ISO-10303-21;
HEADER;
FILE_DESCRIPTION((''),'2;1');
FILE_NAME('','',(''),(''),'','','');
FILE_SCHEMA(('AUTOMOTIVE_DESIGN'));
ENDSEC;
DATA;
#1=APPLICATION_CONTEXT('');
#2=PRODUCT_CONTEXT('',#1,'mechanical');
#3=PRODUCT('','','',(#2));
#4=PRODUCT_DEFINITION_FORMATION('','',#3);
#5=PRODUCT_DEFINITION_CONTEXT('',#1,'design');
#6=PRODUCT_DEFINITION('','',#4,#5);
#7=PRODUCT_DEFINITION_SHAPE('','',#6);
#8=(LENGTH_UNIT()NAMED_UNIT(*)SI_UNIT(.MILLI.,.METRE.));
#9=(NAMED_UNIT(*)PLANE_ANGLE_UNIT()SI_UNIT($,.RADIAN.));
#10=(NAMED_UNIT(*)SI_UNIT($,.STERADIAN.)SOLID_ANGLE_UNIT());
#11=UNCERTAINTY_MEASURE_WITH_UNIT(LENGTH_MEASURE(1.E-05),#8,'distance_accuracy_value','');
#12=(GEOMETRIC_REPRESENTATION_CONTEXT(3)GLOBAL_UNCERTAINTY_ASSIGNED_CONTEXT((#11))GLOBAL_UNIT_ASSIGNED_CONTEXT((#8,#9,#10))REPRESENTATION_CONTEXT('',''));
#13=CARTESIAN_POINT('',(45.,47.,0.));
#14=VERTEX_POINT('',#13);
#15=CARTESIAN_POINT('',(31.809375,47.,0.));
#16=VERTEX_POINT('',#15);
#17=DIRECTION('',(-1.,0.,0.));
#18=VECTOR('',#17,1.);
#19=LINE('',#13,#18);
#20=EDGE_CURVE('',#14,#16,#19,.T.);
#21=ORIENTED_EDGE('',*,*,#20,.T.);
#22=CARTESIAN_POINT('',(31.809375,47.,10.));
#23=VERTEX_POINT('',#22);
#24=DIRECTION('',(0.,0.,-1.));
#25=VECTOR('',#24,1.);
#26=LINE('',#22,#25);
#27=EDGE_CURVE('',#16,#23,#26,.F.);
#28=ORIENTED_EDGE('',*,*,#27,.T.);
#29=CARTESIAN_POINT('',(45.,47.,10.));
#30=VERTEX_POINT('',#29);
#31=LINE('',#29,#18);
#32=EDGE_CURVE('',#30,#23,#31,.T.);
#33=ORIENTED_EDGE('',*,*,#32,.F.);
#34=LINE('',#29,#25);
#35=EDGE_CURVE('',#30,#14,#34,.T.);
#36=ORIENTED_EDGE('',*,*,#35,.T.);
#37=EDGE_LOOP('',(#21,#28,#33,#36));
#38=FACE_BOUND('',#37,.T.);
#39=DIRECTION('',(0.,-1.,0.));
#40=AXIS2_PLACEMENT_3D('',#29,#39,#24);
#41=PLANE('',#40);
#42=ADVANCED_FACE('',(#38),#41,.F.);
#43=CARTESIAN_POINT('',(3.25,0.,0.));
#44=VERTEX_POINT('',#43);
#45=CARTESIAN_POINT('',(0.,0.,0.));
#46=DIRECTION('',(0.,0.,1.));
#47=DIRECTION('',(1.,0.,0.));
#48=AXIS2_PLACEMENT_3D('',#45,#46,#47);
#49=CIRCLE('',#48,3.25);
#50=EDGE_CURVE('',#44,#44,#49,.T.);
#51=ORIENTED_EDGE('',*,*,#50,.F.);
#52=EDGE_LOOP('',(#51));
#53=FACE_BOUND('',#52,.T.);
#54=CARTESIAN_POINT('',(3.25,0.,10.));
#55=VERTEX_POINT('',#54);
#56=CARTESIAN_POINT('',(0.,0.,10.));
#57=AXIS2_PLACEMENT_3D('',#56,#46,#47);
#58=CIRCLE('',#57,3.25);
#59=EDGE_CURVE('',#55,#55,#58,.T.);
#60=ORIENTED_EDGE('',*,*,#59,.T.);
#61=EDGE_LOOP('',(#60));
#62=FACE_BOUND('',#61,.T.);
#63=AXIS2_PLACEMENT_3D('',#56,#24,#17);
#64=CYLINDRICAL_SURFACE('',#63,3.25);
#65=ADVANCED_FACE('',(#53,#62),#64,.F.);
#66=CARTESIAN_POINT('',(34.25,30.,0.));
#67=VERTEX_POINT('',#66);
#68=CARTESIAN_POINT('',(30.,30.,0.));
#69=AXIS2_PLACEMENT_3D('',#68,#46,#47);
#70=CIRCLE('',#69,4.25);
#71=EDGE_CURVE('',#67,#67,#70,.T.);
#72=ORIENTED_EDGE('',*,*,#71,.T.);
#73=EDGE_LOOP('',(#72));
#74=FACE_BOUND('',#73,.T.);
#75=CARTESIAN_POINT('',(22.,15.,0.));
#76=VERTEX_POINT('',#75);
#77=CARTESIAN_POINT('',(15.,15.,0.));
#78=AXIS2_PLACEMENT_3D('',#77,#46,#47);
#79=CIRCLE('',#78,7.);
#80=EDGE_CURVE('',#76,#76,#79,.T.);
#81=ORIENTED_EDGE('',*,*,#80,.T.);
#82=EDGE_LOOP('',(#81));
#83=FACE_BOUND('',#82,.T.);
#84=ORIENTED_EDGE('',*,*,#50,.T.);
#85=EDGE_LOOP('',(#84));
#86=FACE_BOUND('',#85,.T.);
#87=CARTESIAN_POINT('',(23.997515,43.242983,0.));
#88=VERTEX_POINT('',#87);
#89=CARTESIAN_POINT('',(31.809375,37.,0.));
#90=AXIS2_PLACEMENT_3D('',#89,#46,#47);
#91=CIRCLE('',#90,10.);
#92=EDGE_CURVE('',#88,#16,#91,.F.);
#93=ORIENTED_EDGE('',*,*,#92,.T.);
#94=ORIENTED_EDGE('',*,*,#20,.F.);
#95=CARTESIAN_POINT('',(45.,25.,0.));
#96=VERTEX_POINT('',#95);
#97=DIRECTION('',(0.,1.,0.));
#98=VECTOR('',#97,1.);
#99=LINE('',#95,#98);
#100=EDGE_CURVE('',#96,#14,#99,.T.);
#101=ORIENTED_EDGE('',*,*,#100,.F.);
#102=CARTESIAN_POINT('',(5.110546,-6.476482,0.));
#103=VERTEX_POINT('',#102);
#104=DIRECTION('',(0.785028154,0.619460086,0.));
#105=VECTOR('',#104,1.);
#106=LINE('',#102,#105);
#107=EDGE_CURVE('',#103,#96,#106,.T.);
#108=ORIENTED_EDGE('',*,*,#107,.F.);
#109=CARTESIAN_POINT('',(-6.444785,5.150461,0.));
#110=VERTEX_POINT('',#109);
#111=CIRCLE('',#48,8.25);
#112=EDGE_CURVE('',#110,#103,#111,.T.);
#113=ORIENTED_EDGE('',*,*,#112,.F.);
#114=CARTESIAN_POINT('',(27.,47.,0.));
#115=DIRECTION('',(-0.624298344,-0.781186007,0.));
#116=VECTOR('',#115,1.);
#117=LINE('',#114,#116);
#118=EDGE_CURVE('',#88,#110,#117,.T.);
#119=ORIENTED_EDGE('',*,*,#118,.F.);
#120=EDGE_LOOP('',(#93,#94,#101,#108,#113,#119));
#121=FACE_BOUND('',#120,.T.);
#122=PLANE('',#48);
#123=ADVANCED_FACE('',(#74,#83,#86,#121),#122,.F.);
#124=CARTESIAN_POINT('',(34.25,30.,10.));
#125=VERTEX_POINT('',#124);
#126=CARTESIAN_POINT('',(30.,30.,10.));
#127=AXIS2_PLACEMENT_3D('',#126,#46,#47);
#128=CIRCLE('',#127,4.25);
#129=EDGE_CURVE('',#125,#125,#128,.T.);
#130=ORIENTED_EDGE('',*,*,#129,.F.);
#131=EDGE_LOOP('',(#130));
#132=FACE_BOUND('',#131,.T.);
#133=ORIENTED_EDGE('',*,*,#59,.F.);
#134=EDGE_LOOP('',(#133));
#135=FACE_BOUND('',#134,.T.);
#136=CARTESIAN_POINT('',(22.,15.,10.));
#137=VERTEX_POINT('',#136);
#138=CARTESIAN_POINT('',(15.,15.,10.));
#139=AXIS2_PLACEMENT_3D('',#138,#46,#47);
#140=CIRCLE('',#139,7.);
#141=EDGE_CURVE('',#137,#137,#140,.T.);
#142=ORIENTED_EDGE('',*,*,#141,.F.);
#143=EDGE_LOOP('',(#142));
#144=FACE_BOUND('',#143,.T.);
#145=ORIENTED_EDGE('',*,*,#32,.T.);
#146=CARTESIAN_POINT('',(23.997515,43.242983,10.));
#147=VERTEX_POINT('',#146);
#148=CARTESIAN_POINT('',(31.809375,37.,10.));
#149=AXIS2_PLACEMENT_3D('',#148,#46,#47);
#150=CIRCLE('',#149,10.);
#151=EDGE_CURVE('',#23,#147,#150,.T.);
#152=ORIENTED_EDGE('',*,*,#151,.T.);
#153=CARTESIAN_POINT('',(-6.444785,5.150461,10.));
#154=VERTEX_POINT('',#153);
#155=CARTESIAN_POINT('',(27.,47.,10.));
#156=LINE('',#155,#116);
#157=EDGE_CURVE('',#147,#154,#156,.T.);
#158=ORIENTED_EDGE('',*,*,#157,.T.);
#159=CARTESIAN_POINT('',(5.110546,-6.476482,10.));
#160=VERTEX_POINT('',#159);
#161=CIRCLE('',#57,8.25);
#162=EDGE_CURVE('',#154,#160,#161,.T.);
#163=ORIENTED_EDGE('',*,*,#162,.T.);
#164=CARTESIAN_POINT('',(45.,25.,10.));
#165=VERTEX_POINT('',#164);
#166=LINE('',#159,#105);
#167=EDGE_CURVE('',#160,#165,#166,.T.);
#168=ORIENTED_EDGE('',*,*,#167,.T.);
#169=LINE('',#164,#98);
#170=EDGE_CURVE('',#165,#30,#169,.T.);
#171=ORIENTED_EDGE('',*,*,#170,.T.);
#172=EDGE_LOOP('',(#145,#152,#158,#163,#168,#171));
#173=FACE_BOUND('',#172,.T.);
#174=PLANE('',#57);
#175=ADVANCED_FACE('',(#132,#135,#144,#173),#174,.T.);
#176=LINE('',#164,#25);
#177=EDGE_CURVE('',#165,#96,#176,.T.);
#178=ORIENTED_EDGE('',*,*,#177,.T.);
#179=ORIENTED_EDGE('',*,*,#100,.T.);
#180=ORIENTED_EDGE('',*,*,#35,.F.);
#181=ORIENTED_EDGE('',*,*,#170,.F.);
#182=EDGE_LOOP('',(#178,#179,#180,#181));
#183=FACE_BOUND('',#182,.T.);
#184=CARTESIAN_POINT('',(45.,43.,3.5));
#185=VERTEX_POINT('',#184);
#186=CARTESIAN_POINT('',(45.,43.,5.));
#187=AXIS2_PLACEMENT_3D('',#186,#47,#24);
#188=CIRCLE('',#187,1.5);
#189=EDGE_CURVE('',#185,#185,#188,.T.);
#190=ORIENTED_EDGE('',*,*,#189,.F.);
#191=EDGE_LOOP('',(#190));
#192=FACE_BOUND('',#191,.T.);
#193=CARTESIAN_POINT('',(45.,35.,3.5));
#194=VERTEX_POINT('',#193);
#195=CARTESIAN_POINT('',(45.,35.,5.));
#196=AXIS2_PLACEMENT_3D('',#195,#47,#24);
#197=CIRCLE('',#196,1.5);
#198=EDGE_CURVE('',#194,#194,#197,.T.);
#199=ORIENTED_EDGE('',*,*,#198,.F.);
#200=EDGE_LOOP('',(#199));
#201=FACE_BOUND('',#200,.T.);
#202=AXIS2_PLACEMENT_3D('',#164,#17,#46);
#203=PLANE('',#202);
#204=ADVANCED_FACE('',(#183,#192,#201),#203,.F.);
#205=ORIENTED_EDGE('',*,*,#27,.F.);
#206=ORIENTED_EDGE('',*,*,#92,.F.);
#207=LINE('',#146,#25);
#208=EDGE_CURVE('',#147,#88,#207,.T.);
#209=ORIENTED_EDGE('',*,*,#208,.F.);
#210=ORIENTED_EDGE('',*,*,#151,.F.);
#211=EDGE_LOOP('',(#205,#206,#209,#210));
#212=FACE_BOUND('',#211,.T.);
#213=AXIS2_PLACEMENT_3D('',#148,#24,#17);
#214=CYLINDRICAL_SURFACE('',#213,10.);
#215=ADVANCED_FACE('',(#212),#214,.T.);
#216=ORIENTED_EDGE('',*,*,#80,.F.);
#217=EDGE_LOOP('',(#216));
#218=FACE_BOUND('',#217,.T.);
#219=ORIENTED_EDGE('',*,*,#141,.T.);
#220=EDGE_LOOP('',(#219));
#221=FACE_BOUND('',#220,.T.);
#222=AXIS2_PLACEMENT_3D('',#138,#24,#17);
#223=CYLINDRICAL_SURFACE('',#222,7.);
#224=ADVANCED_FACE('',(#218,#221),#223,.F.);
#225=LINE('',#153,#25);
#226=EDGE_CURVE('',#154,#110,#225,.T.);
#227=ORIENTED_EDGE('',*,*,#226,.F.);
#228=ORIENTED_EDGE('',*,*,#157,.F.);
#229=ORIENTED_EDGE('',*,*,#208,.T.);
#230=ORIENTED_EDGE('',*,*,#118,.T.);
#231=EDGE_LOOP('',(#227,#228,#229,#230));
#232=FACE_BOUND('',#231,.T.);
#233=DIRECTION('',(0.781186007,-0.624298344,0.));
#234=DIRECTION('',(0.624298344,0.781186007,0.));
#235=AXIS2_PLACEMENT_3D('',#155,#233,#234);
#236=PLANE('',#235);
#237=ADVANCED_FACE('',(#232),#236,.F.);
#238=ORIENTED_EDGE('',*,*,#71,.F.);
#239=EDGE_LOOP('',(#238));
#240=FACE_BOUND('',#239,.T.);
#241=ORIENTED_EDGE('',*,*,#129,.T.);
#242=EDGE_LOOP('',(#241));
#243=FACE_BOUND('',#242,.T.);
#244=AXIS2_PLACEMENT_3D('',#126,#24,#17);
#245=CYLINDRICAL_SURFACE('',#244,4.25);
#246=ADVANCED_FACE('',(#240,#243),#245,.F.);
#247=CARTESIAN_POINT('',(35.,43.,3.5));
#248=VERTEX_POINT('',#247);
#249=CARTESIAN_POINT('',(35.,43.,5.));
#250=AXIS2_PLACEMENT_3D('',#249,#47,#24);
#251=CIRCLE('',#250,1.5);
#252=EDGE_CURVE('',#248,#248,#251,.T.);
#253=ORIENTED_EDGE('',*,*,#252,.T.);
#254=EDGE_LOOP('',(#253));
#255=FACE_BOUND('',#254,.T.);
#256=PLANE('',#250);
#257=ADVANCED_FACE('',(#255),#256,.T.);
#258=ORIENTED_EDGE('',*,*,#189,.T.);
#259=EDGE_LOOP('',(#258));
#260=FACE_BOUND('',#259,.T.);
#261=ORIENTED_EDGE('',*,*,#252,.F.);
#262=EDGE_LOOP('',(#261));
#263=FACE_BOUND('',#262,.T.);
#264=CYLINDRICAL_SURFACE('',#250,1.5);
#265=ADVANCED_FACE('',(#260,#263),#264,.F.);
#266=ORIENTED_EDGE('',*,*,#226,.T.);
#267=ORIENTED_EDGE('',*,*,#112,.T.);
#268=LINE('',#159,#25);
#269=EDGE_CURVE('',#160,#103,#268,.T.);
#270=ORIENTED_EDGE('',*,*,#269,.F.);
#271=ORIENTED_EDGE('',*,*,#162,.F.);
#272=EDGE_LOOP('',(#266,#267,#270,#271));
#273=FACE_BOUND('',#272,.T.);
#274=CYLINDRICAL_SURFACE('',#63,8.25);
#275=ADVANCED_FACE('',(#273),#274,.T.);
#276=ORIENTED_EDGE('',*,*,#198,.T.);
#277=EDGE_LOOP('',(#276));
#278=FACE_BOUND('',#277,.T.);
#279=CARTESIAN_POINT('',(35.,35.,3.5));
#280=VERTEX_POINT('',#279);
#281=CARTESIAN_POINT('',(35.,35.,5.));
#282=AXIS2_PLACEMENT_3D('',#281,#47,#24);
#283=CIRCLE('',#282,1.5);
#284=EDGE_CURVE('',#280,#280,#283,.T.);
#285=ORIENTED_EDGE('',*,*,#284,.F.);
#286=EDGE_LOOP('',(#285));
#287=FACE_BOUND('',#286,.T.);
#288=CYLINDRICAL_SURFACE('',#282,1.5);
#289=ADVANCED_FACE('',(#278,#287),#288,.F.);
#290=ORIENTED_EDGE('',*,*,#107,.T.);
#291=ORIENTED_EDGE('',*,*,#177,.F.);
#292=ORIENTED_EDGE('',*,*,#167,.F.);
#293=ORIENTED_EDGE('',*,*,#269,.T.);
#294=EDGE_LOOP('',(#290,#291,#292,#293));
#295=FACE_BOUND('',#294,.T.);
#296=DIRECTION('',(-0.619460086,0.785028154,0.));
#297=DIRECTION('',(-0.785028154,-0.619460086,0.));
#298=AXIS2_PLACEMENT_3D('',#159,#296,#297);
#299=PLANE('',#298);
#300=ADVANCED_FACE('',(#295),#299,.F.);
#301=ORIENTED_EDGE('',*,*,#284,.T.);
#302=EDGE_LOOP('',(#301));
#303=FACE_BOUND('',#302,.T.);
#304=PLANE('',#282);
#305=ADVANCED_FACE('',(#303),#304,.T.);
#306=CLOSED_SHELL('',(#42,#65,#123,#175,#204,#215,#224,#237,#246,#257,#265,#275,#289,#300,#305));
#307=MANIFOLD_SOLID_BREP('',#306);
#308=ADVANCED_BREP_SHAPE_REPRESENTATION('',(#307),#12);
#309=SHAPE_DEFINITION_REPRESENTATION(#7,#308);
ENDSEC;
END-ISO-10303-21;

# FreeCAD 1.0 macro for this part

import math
import FreeCAD as App
import Part
import Sketcher

V = App.Vector
Q = App.Units.Quantity


def edges_at(feature, points):
    """Names of the edges that pass closest to the given points."""
    edges = feature.Shape.Edges
    near = lambda p: min(range(len(edges)), key=lambda i: edges[i].distToShape(Part.Vertex(*p))[0])
    return sorted({f"Edge{near(p) + 1}" for p in points})

doc = App.newDocument("Part")
params = doc.addObject("Spreadsheet::Sheet", "Params")
for row, (alias, value) in enumerate([
    ("sketch1_diameter", "14 mm"),
    ("sketch1_diameter2", "6.5 mm"),
    ("sketch1_diameter3", "8.5 mm"),
    ("sketch1_width", "18 mm"),
    ("sketch1_height", "22 mm"),
    ("pad1_length", "10 mm"),
    ("sketch2_diameter", "3 mm"),
    ("pocket1_length", "10 mm"),
    ("fillet_radius", "10 mm"),
], start=1):
    params.set(f"A{row}", alias)
    params.set(f"B{row}", "=" + value)
    params.setAlias(f"B{row}", alias)

body = doc.addObject("PartDesign::Body", "Body")

# Sketch on XY plane
sketch1 = body.newObject("Sketcher::SketchObject", "Sketch")
sketch1.AttachmentSupport = (doc.getObject("XY_Plane"), [""])
sketch1.MapMode = "FlatFace"
sketch1.addGeometry(Part.LineSegment(V(5.110546, -6.476482, 0), V(45, 25, 0)), False)
sketch1.addGeometry(Part.LineSegment(V(45, 25, 0), V(45, 47, 0)), False)
sketch1.addGeometry(Part.LineSegment(V(45, 47, 0), V(27, 47, 0)), False)
sketch1.addGeometry(Part.LineSegment(V(27, 47, 0), V(-6.444785, 5.150461, 0)), False)
sketch1.addGeometry(Part.ArcOfCircle(Part.Circle(V(0, 0, 0), V(0, 0, 1), 8.25), math.radians(141.369294), math.radians(308.276718)), False)
sketch1.addGeometry(Part.Circle(V(0, 0, 0), V(0, 0, 1), 3.25), False)
sketch1.addGeometry(Part.Circle(V(15, 15, 0), V(0, 0, 1), 7), False)
sketch1.addGeometry(Part.Circle(V(30, 30, 0), V(0, 0, 1), 4.25), False)
sketch1.addConstraint(Sketcher.Constraint("Coincident", 0, 2, 1, 1))
sketch1.addConstraint(Sketcher.Constraint("Coincident", 1, 2, 2, 1))
sketch1.addConstraint(Sketcher.Constraint("Coincident", 2, 2, 3, 1))
sketch1.addConstraint(Sketcher.Constraint("Tangent", 3, 2, 4, 1))
sketch1.addConstraint(Sketcher.Constraint("Tangent", 4, 2, 0, 1))
sketch1.addConstraint(Sketcher.Constraint("Vertical", 1))
sketch1.addConstraint(Sketcher.Constraint("Horizontal", 2))
sketch1.addConstraint(Sketcher.Constraint("Coincident", 4, 3, -1, 1))
sketch1.addConstraint(Sketcher.Constraint("Coincident", 5, 3, -1, 1))
sketch1.addConstraint(Sketcher.Constraint("Diameter", 6, Q("14 mm")))
sketch1.addConstraint(Sketcher.Constraint("Diameter", 5, Q("6.5 mm")))
sketch1.addConstraint(Sketcher.Constraint("Diameter", 7, Q("8.5 mm")))
sketch1.addConstraint(Sketcher.Constraint("DistanceX", 2, 2, 2, 1, Q("18 mm")))
sketch1.addConstraint(Sketcher.Constraint("DistanceY", 1, 1, 1, 2, Q("22 mm")))
sketch1.addConstraint(Sketcher.Constraint("Radius", 4, Q("8.25 mm")))
sketch1.addConstraint(Sketcher.Constraint("DistanceX", -1, 1, 6, 3, Q("15 mm")))
sketch1.addConstraint(Sketcher.Constraint("DistanceY", -1, 1, 6, 3, Q("15 mm")))
sketch1.addConstraint(Sketcher.Constraint("DistanceX", -1, 1, 7, 3, Q("30 mm")))
sketch1.addConstraint(Sketcher.Constraint("DistanceY", -1, 1, 7, 3, Q("30 mm")))
sketch1.addConstraint(Sketcher.Constraint("DistanceX", -1, 1, 0, 2, Q("45 mm")))
sketch1.addConstraint(Sketcher.Constraint("DistanceY", -1, 1, 0, 2, Q("25 mm")))
sketch1.setExpression("Constraints[9]", "Params.sketch1_diameter")
sketch1.setExpression("Constraints[10]", "Params.sketch1_diameter2")
sketch1.setExpression("Constraints[11]", "Params.sketch1_diameter3")
sketch1.setExpression("Constraints[12]", "Params.sketch1_width")
sketch1.setExpression("Constraints[13]", "Params.sketch1_height")
pad1 = body.newObject("PartDesign::Pad", "Pad")
pad1.Profile = sketch1
pad1.setExpression("Length", "Params.pad1_length")

# Sketch on YZ plane
sketch2 = body.newObject("Sketcher::SketchObject", "Sketch001")
sketch2.AttachmentSupport = (doc.getObject("YZ_Plane"), [""])
sketch2.MapMode = "FlatFace"
sketch2.AttachmentOffset = App.Placement(V(0, 0, 45), App.Rotation())
sketch2.addGeometry(Part.Circle(V(43, 5, 0), V(0, 0, 1), 1.5), False)
sketch2.addGeometry(Part.Circle(V(35, 5, 0), V(0, 0, 1), 1.5), False)
sketch2.addConstraint(Sketcher.Constraint("Equal", 0, 1))
sketch2.addConstraint(Sketcher.Constraint("Horizontal", 0, 3, 1, 3))
sketch2.addConstraint(Sketcher.Constraint("Diameter", 0, Q("3 mm")))
sketch2.addConstraint(Sketcher.Constraint("DistanceX", -1, 1, 0, 3, Q("43 mm")))
sketch2.addConstraint(Sketcher.Constraint("DistanceY", -1, 1, 0, 3, Q("5 mm")))
sketch2.addConstraint(Sketcher.Constraint("DistanceX", -1, 1, 1, 3, Q("35 mm")))
sketch2.setExpression("Constraints[2]", "Params.sketch2_diameter")
pocket1 = body.newObject("PartDesign::Pocket", "Pocket")
pocket1.Profile = sketch2
pocket1.setExpression("Length", "Params.pocket1_length")
doc.recompute()

fillet = body.newObject("PartDesign::Fillet", "Fillet")
fillet.Base = (pocket1, edges_at(pocket1, [(27, 47, 5)]))
fillet.setExpression("Radius", "Params.fillet_radius")

doc.recompute()
